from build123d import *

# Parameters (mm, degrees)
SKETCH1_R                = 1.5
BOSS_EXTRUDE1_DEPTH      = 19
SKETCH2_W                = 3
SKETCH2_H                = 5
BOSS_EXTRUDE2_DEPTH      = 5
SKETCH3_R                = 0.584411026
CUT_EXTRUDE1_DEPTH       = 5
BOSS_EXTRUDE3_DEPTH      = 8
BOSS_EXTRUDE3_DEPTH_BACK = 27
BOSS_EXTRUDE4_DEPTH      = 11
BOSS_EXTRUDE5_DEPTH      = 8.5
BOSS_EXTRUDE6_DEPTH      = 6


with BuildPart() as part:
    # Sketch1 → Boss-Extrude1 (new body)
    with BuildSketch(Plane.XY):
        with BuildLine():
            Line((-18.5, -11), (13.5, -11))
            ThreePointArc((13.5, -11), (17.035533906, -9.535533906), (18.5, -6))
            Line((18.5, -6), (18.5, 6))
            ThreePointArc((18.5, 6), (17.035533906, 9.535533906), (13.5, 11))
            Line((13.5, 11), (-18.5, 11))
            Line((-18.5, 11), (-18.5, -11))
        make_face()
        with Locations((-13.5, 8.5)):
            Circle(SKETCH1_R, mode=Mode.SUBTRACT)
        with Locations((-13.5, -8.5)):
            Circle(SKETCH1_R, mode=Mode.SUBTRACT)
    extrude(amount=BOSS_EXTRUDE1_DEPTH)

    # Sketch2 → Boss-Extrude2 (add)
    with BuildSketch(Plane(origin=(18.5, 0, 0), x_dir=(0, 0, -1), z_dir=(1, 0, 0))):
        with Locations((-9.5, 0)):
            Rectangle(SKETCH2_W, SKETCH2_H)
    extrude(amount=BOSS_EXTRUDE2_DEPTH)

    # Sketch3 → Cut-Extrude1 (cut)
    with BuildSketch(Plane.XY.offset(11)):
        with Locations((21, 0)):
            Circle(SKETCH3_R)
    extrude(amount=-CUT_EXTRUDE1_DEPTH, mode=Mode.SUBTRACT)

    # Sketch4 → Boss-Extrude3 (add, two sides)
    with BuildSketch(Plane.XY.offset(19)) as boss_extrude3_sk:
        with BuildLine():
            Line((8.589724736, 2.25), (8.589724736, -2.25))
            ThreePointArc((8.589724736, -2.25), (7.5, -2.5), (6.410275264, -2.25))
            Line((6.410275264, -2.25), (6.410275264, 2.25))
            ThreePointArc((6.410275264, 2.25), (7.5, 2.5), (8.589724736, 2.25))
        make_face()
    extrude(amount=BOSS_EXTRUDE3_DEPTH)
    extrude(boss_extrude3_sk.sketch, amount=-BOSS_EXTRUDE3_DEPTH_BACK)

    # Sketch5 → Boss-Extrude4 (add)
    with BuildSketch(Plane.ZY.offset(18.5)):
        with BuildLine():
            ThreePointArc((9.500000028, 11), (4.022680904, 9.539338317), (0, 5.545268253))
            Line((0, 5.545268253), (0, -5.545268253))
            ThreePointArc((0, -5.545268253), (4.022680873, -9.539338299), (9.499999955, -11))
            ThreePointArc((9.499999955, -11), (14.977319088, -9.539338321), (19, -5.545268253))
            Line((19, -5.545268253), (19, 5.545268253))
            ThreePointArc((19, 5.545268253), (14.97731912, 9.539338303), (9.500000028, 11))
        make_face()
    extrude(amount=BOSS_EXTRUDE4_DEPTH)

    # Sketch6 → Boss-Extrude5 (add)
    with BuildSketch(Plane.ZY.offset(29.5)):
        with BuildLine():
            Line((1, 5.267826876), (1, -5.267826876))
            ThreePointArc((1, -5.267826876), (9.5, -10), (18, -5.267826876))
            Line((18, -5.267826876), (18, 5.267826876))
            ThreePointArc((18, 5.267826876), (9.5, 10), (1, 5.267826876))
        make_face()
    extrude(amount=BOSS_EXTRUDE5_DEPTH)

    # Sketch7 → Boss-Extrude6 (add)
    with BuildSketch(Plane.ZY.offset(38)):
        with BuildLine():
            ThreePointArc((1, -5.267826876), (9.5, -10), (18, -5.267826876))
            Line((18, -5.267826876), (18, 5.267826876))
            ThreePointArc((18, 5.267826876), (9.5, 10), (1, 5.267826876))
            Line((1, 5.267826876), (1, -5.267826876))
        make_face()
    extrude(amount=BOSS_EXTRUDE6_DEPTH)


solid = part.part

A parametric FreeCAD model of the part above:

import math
import FreeCAD as App
import Part
import Sketcher

doc = App.newDocument("Part")
body = doc.addObject("PartDesign::Body", "Body")

# Sketch on XY plane
sketch1 = body.newObject("Sketcher::SketchObject", "Sketch")
sketch1.AttachmentSupport = (doc.getObject("XY_Plane"), [""])
sketch1.MapMode = "FlatFace"
sketch1.addGeometry([
    Part.LineSegment(App.Vector(-18.5, -11, 0), App.Vector(13.5, -11, 0)),  # 0
    Part.ArcOfCircle(Part.Circle(App.Vector(13.5, -6, 0), App.Vector(0, 0, 1), 5), math.radians(-90), math.radians(0)),  # 1
    Part.LineSegment(App.Vector(18.5, -6, 0), App.Vector(18.5, 6, 0)),  # 2
    Part.ArcOfCircle(Part.Circle(App.Vector(13.5, 6, 0), App.Vector(0, 0, 1), 5), math.radians(0), math.radians(90)),  # 3
    Part.LineSegment(App.Vector(13.5, 11, 0), App.Vector(-18.5, 11, 0)),  # 4
    Part.LineSegment(App.Vector(-18.5, 11, 0), App.Vector(-18.5, -11, 0)),  # 5
    Part.Circle(App.Vector(-13.5, -8.5, 0), App.Vector(0, 0, 1), 1.5),  # 6
    Part.Circle(App.Vector(-13.5, 8.5, 0), App.Vector(0, 0, 1), 1.5),  # 7
], False)
sketch1.addConstraint([
    Sketcher.Constraint("Tangent", 0, 2, 1, 1),
    Sketcher.Constraint("Tangent", 1, 2, 2, 1),
    Sketcher.Constraint("Tangent", 2, 2, 3, 1),
    Sketcher.Constraint("Tangent", 3, 2, 4, 1),
    Sketcher.Constraint("Coincident", 4, 2, 5, 1),
    Sketcher.Constraint("Coincident", 5, 2, 0, 1),
    Sketcher.Constraint("Horizontal", 0),
    Sketcher.Constraint("Vertical", 2),
    Sketcher.Constraint("Horizontal", 4),
    Sketcher.Constraint("Vertical", 5),
    Sketcher.Constraint("Equal", 1, 3),
    Sketcher.Constraint("Equal", 6, 7),
    Sketcher.Constraint("Symmetric", 6, 3, 7, 3, -1),
    Sketcher.Constraint("Diameter", 6, 3.0),
    Sketcher.Constraint("Radius", 1, 5.0),
    Sketcher.Constraint("DistanceX", 0, 1, 0, 2, 32.0),
    Sketcher.Constraint("DistanceY", 2, 1, 2, 2, 12.0),
    Sketcher.Constraint("DistanceY", 1, 3, -1, 1, 6.0),
    Sketcher.Constraint("DistanceX", 6, 3, 1, 3, 27.0),
    Sketcher.Constraint("DistanceY", 6, 3, 7, 3, 17.0),
    Sketcher.Constraint("DistanceX", -1, 1, 1, 3, 13.5),
])
pad1 = body.newObject("PartDesign::Pad", "Pad")
pad1.Profile = sketch1
pad1.Length = 19

# Sketch on YZ plane
sketch2 = body.newObject("Sketcher::SketchObject", "Sketch001")
sketch2.AttachmentSupport = (doc.getObject("YZ_Plane"), [""])
sketch2.MapMode = "FlatFace"
sketch2.AttachmentOffset = App.Placement(App.Vector(0, 0, 18.5), App.Rotation())
sketch2.addGeometry([
    Part.LineSegment(App.Vector(2.5, 11, 0), App.Vector(-2.5, 11, 0)),
    Part.LineSegment(App.Vector(-2.5, 11, 0), App.Vector(-2.5, 8, 0)),
    Part.LineSegment(App.Vector(-2.5, 8, 0), App.Vector(2.5, 8, 0)),
    Part.LineSegment(App.Vector(2.5, 8, 0), App.Vector(2.5, 11, 0)),
], False)
sketch2.addConstraint([
    Sketcher.Constraint("Coincident", 0, 2, 1, 1),
    Sketcher.Constraint("Coincident", 1, 2, 2, 1),
    Sketcher.Constraint("Coincident", 2, 2, 3, 1),
    Sketcher.Constraint("Coincident", 3, 2, 0, 1),
    Sketcher.Constraint("Horizontal", 0),
    Sketcher.Constraint("Vertical", 1),
    Sketcher.Constraint("Horizontal", 2),
    Sketcher.Constraint("Vertical", 3),
    Sketcher.Constraint("DistanceX", 0, 2, 0, 1, 5.0),
    Sketcher.Constraint("DistanceY", 1, 2, 1, 1, 3.0),
    Sketcher.Constraint("DistanceY", -1, 1, 0, 2, 11.0),
    Sketcher.Constraint("DistanceX", 0, 2, -1, 1, 2.5),
])
pad2 = body.newObject("PartDesign::Pad", "Pad001")
pad2.Profile = sketch2
pad2.Length = 5

# Sketch on XY plane
sketch3 = body.newObject("Sketcher::SketchObject", "Sketch002")
sketch3.AttachmentSupport = (doc.getObject("XY_Plane"), [""])
sketch3.MapMode = "FlatFace"
sketch3.AttachmentOffset = App.Placement(App.Vector(0, 0, 11), App.Rotation())
sketch3.addGeometry(Part.Circle(App.Vector(21, 0, 0), App.Vector(0, 0, 1), 0.6), False)
sketch3.addConstraint([
    Sketcher.Constraint("PointOnObject", 0, 3, -1),
    Sketcher.Constraint("DistanceX", -1, 1, 0, 3, 21.0),
    Sketcher.Constraint("Diameter", 0, 1.168822),
])
pocket1 = body.newObject("PartDesign::Pocket", "Pocket")
pocket1.Profile = sketch3
pocket1.Length = 5

# Sketch on XY plane
sketch4 = body.newObject("Sketcher::SketchObject", "Sketch003")
sketch4.AttachmentSupport = (doc.getObject("XY_Plane"), [""])
sketch4.MapMode = "FlatFace"
sketch4.AttachmentOffset = App.Placement(App.Vector(0, 0, 19), App.Rotation())
sketch4.addGeometry([
    Part.LineSegment(App.Vector(8.6, -2.2, 0), App.Vector(8.6, 2.2, 0)),
    Part.ArcOfCircle(Part.Circle(App.Vector(7.5, 0, 0), App.Vector(0, 0, 1), 2.5), math.radians(64), math.radians(116)),
    Part.LineSegment(App.Vector(6.4, 2.2, 0), App.Vector(6.4, -2.2, 0)),
    Part.ArcOfCircle(Part.Circle(App.Vector(7.5, 0, 0), App.Vector(0, 0, 1), 2.5), math.radians(-116), math.radians(-64)),
], False)
sketch4.addConstraint([
    Sketcher.Constraint("Coincident", 0, 2, 1, 1),
    Sketcher.Constraint("Coincident", 1, 2, 2, 1),
    Sketcher.Constraint("Coincident", 2, 2, 3, 1),
    Sketcher.Constraint("Coincident", 3, 2, 0, 1),
    Sketcher.Constraint("Vertical", 0),
    Sketcher.Constraint("Vertical", 2),
    Sketcher.Constraint("Coincident", 3, 3, 1, 3),
    Sketcher.Constraint("Equal", 1, 3),
    Sketcher.Constraint("PointOnObject", 1, 3, -1),
    Sketcher.Constraint("Horizontal", 0, 2, 1, 2),
    Sketcher.Constraint("Radius", 1, 2.5),
    Sketcher.Constraint("DistanceY", 0, 1, 0, 2, 4.5),
    Sketcher.Constraint("DistanceX", -1, 1, 1, 3, 7.5),
])
pad3 = body.newObject("PartDesign::Pad", "Pad002")
pad3.Profile = sketch4
pad3.Type = "TwoLengths"
pad3.Length = 8
pad3.Length2 = 27

# Sketch on YZ plane
sketch5 = body.newObject("Sketcher::SketchObject", "Sketch004")
sketch5.AttachmentSupport = (doc.getObject("YZ_Plane"), [""])
sketch5.MapMode = "FlatFace"
sketch5.AttachmentOffset = App.Placement(App.Vector(0, 0, -18.5), App.Rotation())
sketch5.addGeometry([
    Part.ArcOfCircle(Part.Circle(App.Vector(0, 9, 0), App.Vector(0, 0, 1), 11), math.radians(-60), math.radians(0)),  # 0
    Part.LineSegment(App.Vector(6, 0, 0), App.Vector(-6, 0, 0)),  # 1
    Part.ArcOfCircle(Part.Circle(App.Vector(0, 10, 0), App.Vector(0, 0, 1), 11), math.radians(-180), math.radians(-120)),  # 2
    Part.ArcOfCircle(Part.Circle(App.Vector(0, 9, 0), App.Vector(0, 0, 1), 11), math.radians(120), math.radians(180)),  # 3
    Part.LineSegment(App.Vector(-6, 19, 0), App.Vector(6, 19, 0)),  # 4
    Part.ArcOfCircle(Part.Circle(App.Vector(0, 10, 0), App.Vector(0, 0, 1), 11), math.radians(0), math.radians(60)),  # 5
], False)
sketch5.addConstraint([
    Sketcher.Constraint("Coincident", 0, 1, 1, 1),
    Sketcher.Constraint("Coincident", 1, 2, 2, 2),
    Sketcher.Constraint("Tangent", 2, 1, 3, 2),
    Sketcher.Constraint("Coincident", 3, 1, 4, 1),
    Sketcher.Constraint("Coincident", 4, 2, 5, 2),
    Sketcher.Constraint("Tangent", 5, 1, 0, 2),
    Sketcher.Constraint("Horizontal", 1),
    Sketcher.Constraint("Horizontal", 4),
    Sketcher.Constraint("Coincident", 2, 3, 0, 3),
    Sketcher.Constraint("Equal", 0, 2),
    Sketcher.Constraint("Equal", 2, 3),
    Sketcher.Constraint("Equal", 3, 5),
    Sketcher.Constraint("Symmetric", 0, 1, 1, 2, -1, 1),
    Sketcher.Constraint("Horizontal", 5, 3, 2, 1),
    Sketcher.Constraint("Horizontal", 2, 1, 5, 1),
    Sketcher.Constraint("Vertical", 1, 2, 3, 1),
    Sketcher.Constraint("Radius", 0, 11.0),
    Sketcher.Constraint("DistanceY", -1, 1, 3, 1, 19.0),
])
pad4 = body.newObject("PartDesign::Pad", "Pad003")
pad4.Profile = sketch5
pad4.Length = 11
pad4.Reversed = True

# Sketch on YZ plane
sketch6 = body.newObject("Sketcher::SketchObject", "Sketch005")
sketch6.AttachmentSupport = (doc.getObject("YZ_Plane"), [""])
sketch6.MapMode = "FlatFace"
sketch6.AttachmentOffset = App.Placement(App.Vector(0, 0, -29.5), App.Rotation())
sketch6.addGeometry([
    Part.LineSegment(App.Vector(5, 1, 0), App.Vector(-5, 1, 0)),
    Part.ArcOfCircle(Part.Circle(App.Vector(0, 10, 0), App.Vector(0, 0, 1), 10), math.radians(122), math.radians(238)),
    Part.LineSegment(App.Vector(-5, 18, 0), App.Vector(5, 18, 0)),
    Part.ArcOfCircle(Part.Circle(App.Vector(0, 10, 0), App.Vector(0, 0, 1), 10), math.radians(-58), math.radians(58)),
], False)
sketch6.addConstraint([
    Sketcher.Constraint("Coincident", 0, 2, 1, 2),
    Sketcher.Constraint("Coincident", 1, 1, 2, 1),
    Sketcher.Constraint("Coincident", 2, 2, 3, 2),
    Sketcher.Constraint("Coincident", 3, 1, 0, 1),
    Sketcher.Constraint("Horizontal", 0),
    Sketcher.Constraint("Horizontal", 2),
    Sketcher.Constraint("Coincident", 3, 3, 1, 3),
    Sketcher.Constraint("Equal", 1, 3),
    Sketcher.Constraint("PointOnObject", 1, 3, -2),
    Sketcher.Constraint("Vertical", 0, 2, 1, 1),
    Sketcher.Constraint("Radius", 1, 10.0),
    Sketcher.Constraint("DistanceY", -1, 1, 0, 2, 1.0),
    Sketcher.Constraint("DistanceY", -1, 1, 1, 1, 18.0),
])
pad5 = body.newObject("PartDesign::Pad", "Pad004")
pad5.Profile = sketch6
pad5.Length = 8.5
pad5.Reversed = True

# Sketch on YZ plane
sketch7 = body.newObject("Sketcher::SketchObject", "Sketch006")
sketch7.AttachmentSupport = (doc.getObject("YZ_Plane"), [""])
sketch7.MapMode = "FlatFace"
sketch7.AttachmentOffset = App.Placement(App.Vector(0, 0, -38), App.Rotation())
sketch7.addGeometry([
    Part.ArcOfCircle(Part.Circle(App.Vector(0, 10, 0), App.Vector(0, 0, 1), 10), math.radians(122), math.radians(238)),
    Part.LineSegment(App.Vector(-5, 18, 0), App.Vector(5, 18, 0)),
    Part.ArcOfCircle(Part.Circle(App.Vector(0, 10, 0), App.Vector(0, 0, 1), 10), math.radians(-58), math.radians(58)),
    Part.LineSegment(App.Vector(5, 1, 0), App.Vector(-5, 1, 0)),
], False)
sketch7.addConstraint([
    Sketcher.Constraint("Coincident", 0, 1, 1, 1),
    Sketcher.Constraint("Coincident", 1, 2, 2, 2),
    Sketcher.Constraint("Coincident", 2, 1, 3, 1),
    Sketcher.Constraint("Coincident", 3, 2, 0, 2),
    Sketcher.Constraint("Horizontal", 1),
    Sketcher.Constraint("Horizontal", 3),
    Sketcher.Constraint("Coincident", 2, 3, 0, 3),
    Sketcher.Constraint("Equal", 0, 2),
    Sketcher.Constraint("PointOnObject", 0, 3, -2),
    Sketcher.Constraint("Vertical", 1, 2, 2, 1),
    Sketcher.Constraint("Radius", 0, 10.0),
    Sketcher.Constraint("DistanceY", -1, 1, 0, 1, 18.0),
    Sketcher.Constraint("DistanceY", -1, 1, 2, 1, 1.0),
])
pad6 = body.newObject("PartDesign::Pad", "Pad005")
pad6.Profile = sketch7
pad6.Length = 6
pad6.Reversed = True

doc.recompute()
